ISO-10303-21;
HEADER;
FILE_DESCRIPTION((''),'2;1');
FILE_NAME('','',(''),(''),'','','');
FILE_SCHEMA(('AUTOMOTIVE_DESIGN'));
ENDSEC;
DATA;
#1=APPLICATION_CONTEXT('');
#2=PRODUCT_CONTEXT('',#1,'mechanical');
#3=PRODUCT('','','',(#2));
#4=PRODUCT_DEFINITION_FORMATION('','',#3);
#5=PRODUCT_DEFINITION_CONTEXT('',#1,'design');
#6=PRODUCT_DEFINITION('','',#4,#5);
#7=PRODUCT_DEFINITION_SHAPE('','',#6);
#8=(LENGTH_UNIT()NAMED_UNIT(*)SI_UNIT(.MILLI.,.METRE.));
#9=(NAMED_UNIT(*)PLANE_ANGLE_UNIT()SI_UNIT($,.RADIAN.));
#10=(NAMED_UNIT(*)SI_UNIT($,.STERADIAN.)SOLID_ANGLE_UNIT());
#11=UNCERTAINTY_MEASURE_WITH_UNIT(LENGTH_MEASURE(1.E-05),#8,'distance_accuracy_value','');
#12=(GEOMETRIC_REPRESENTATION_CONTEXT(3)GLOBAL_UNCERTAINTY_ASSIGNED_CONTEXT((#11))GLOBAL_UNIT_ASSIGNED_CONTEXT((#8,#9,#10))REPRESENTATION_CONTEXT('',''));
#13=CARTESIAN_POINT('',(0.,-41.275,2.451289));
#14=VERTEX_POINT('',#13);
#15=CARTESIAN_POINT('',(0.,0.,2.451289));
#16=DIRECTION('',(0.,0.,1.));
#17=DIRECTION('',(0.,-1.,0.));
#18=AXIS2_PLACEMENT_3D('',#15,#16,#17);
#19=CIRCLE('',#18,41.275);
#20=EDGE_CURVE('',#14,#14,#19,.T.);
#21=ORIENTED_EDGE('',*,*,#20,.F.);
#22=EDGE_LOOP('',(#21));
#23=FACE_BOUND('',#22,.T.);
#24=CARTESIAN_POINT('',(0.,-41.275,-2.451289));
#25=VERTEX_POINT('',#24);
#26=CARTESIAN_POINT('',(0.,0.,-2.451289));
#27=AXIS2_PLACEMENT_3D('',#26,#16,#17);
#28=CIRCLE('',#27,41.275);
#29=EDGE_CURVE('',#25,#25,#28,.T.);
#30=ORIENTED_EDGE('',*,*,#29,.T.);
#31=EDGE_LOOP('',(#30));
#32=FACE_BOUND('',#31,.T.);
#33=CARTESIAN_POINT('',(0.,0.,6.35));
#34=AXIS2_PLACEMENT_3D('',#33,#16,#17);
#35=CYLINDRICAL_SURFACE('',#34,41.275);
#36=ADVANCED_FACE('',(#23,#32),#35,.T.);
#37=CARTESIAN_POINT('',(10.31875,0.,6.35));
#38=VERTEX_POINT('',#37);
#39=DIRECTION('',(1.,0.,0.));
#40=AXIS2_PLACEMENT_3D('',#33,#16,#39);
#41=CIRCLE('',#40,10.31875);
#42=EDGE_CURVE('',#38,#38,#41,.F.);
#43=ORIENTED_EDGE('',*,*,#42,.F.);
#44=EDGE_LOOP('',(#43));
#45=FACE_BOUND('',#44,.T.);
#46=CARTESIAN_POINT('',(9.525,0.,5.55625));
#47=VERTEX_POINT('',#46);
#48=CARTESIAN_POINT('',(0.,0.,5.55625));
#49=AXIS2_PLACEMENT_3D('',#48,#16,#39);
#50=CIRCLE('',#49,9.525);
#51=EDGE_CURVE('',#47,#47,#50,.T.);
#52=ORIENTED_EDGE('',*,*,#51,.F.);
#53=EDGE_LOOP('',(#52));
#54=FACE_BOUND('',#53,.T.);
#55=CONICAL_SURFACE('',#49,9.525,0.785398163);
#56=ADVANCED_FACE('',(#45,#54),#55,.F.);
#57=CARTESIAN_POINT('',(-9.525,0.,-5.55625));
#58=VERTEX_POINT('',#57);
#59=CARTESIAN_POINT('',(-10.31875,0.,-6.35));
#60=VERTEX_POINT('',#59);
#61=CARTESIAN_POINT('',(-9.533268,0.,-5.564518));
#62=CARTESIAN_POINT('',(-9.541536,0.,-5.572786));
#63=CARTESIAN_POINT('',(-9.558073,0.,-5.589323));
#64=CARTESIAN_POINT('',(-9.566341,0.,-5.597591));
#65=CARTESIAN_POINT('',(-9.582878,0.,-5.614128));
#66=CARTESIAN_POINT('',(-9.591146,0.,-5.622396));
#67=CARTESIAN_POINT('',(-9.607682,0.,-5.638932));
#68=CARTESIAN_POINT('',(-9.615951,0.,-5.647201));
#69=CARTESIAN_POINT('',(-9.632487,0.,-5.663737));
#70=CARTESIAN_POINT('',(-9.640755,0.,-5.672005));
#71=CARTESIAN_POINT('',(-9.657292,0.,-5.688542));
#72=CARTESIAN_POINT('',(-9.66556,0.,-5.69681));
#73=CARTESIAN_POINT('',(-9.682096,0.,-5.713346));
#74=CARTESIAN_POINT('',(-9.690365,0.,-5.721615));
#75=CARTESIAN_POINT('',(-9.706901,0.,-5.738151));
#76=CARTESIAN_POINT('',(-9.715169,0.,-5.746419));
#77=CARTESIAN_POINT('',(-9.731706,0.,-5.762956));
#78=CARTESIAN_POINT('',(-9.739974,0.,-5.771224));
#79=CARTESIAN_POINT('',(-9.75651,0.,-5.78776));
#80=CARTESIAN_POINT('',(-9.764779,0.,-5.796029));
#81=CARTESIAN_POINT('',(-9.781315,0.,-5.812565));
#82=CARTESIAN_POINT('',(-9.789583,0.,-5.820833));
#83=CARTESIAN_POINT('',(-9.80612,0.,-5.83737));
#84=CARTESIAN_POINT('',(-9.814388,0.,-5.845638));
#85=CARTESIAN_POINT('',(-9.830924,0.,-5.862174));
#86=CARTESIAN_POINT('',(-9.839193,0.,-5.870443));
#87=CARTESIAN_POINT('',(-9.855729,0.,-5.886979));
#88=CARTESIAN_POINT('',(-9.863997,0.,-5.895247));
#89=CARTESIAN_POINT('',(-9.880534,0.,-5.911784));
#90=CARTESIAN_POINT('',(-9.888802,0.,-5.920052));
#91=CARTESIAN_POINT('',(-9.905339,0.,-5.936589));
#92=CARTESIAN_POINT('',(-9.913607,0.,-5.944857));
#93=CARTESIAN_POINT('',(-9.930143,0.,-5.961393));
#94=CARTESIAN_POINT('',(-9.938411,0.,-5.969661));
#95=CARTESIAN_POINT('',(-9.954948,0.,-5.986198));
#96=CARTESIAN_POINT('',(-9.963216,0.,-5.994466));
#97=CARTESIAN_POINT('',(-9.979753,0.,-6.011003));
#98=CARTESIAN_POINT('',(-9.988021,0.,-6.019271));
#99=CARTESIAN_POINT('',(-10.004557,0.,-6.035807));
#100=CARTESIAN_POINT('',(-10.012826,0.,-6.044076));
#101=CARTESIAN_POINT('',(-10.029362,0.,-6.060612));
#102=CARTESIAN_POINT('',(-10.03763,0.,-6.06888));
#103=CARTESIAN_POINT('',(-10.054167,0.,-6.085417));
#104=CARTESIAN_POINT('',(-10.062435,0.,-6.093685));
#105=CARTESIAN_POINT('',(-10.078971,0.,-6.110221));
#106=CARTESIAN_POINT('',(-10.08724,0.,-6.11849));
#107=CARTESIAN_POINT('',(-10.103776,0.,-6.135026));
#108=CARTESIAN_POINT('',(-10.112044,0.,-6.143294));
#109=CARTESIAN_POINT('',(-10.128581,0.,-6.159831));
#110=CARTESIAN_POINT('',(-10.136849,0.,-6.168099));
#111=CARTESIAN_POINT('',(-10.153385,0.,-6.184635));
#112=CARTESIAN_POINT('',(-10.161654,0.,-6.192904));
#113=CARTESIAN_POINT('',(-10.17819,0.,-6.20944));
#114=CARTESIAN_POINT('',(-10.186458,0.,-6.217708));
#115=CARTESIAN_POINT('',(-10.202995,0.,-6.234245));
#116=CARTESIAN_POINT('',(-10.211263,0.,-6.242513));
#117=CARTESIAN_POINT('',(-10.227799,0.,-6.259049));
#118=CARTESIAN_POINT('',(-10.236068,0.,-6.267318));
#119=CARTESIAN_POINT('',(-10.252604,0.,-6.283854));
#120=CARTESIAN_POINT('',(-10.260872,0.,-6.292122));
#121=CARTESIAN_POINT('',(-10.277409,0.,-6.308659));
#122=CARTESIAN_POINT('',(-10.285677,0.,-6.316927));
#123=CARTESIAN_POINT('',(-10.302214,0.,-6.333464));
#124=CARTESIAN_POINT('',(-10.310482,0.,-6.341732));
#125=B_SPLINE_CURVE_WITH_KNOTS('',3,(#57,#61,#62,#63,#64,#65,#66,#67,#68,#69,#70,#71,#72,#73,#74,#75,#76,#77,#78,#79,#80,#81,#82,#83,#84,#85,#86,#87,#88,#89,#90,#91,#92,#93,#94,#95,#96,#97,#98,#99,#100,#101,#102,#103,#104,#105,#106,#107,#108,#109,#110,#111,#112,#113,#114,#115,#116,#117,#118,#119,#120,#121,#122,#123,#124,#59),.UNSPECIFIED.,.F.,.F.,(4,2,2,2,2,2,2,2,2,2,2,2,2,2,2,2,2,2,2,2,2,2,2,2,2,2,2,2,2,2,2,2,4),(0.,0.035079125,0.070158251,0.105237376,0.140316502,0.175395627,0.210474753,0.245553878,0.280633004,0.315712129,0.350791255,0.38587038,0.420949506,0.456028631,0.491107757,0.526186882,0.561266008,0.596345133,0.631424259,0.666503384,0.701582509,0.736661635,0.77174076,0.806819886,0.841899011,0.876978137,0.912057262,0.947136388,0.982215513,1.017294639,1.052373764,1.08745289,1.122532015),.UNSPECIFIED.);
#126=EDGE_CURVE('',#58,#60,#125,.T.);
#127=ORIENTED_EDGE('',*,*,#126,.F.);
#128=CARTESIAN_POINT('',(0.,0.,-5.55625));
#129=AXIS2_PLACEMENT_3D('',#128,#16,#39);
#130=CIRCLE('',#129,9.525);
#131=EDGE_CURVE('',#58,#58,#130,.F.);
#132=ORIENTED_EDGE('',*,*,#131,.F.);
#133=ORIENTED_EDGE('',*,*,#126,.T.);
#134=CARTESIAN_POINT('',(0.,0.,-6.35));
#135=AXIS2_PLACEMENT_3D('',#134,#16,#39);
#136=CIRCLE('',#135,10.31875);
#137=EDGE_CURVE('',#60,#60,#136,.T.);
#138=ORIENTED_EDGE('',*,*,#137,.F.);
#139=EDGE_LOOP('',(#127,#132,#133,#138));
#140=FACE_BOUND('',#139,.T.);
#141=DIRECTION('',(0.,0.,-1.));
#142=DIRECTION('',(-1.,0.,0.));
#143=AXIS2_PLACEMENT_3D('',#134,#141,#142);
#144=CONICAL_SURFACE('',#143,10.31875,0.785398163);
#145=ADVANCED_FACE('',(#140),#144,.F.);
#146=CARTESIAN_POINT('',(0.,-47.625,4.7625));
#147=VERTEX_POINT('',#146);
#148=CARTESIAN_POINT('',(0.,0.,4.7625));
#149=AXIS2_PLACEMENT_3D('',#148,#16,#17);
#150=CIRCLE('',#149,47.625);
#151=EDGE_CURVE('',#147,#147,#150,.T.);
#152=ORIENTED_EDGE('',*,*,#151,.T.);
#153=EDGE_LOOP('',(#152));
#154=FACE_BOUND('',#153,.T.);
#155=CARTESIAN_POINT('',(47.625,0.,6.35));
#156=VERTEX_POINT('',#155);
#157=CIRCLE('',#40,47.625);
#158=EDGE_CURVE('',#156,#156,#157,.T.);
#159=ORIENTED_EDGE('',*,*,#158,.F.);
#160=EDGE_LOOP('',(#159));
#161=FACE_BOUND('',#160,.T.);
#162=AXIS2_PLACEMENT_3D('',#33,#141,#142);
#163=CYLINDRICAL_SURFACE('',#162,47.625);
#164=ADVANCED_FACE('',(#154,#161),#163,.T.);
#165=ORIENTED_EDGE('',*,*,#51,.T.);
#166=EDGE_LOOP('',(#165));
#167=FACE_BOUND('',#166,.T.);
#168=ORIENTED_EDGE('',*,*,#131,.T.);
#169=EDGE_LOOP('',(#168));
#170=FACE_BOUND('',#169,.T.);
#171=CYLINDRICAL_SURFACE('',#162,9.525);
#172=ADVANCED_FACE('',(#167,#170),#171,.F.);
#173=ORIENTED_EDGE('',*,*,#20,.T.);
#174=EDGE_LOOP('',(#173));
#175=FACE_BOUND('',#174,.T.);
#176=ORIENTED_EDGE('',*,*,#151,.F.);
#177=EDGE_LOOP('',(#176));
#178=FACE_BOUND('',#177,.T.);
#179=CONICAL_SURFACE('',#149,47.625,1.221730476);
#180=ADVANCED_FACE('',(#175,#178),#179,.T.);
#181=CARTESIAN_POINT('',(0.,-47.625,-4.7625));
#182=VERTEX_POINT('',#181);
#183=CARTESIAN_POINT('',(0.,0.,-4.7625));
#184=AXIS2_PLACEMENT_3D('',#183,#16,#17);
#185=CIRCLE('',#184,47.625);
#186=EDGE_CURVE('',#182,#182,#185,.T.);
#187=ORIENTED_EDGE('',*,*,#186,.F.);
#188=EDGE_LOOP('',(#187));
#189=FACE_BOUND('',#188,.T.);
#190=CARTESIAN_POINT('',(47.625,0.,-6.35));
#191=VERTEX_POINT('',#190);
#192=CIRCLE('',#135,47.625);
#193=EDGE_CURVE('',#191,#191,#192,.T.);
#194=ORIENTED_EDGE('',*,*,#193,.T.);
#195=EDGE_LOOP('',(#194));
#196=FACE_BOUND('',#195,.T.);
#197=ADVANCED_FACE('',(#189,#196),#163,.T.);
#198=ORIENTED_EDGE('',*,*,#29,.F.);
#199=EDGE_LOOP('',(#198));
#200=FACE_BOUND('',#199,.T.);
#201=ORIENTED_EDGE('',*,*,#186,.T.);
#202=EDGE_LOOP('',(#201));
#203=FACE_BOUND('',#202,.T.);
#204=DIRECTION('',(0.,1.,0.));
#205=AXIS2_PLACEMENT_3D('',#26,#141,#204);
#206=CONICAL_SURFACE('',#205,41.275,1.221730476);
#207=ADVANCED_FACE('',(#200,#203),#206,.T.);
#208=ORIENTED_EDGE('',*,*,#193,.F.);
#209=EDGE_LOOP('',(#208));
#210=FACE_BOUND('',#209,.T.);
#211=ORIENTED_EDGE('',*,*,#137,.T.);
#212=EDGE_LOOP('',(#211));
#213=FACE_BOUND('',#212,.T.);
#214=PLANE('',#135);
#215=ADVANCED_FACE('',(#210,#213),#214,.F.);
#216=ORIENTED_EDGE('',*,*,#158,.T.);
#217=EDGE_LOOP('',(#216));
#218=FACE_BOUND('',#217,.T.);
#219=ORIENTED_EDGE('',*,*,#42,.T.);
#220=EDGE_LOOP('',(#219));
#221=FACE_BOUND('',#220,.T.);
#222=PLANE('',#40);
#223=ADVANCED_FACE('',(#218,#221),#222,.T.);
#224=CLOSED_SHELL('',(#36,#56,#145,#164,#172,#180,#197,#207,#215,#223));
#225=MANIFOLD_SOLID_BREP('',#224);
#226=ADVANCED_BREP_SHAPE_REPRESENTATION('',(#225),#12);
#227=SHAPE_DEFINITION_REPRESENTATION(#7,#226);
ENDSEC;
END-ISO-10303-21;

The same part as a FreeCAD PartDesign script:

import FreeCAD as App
import Part
import Sketcher

V = App.Vector
Q = App.Units.Quantity


def edges_at(feature, points):
    """Names of the edges that pass closest to the given points."""
    edges = feature.Shape.Edges
    near = lambda p: min(range(len(edges)), key=lambda i: edges[i].distToShape(Part.Vertex(*p))[0])
    return sorted({f"Edge{near(p) + 1}" for p in points})

doc = App.newDocument("Part")
body = doc.addObject("PartDesign::Body", "Body")

sketch1 = doc.addObject("Sketcher::SketchObject", "Sketch")
body.addObject(sketch1)
sketch1.AttachmentSupport = (doc.XY_Plane, [""])
sketch1.MapMode = "FlatFace"
sketch1.addGeometry([
    Part.Circle(V(0, 0, 0), V(0, 0, 1), 48),
    Part.Circle(V(0, 0, 0), V(0, 0, 1), 10),
], False)
sketch1.addConstraint([
    Sketcher.Constraint("Coincident", 0, 3, -1, 1),
    Sketcher.Constraint("Coincident", 1, 3, -1, 1),
    Sketcher.Constraint("Diameter", 0, Q("3.75 in")),
    Sketcher.Constraint("Diameter", 1, Q("0.75 in")),
])
pad1 = doc.addObject("PartDesign::Pad", "Pad")
body.addObject(pad1)
pad1.Profile = sketch1
pad1.Length = Q("0.5 in")
pad1.Midplane = True
doc.recompute()

chamfer = doc.addObject("PartDesign::Chamfer", "Chamfer")
body.addObject(chamfer)
chamfer.Base = (pad1, edges_at(pad1, [(-9.525, 0, -6.35), (-9.525, 0, 6.35)]))
chamfer.Size = Q("0.03125 in")

sketch2 = doc.addObject("Sketcher::SketchObject", "Sketch001")
body.addObject(sketch2)
sketch2.AttachmentSupport = (doc.YZ_Plane, [""])
sketch2.MapMode = "FlatFace"
sketch2.addGeometry([
    Part.LineSegment(V(47.6, -4.8, 0), V(47.6, 4.8, 0)),
    Part.LineSegment(V(47.6, 4.8, 0), V(41.3, 2.5, 0)),
    Part.LineSegment(V(41.3, 2.5, 0), V(41.3, -2.5, 0)),
    Part.LineSegment(V(41.3, -2.5, 0), V(47.6, -4.8, 0)),
], False)
sketch2.addConstraint([
    Sketcher.Constraint("Coincident", 0, 2, 1, 1),
    Sketcher.Constraint("Coincident", 1, 2, 2, 1),
    Sketcher.Constraint("Coincident", 2, 2, 3, 1),
    Sketcher.Constraint("Coincident", 3, 2, 0, 1),
    Sketcher.Constraint("Vertical", 0),
    Sketcher.Constraint("Vertical", 2),
    Sketcher.Constraint("Equal", 1, 3),
    Sketcher.Constraint("Angle", 1, Q("-160 deg")),
    Sketcher.Constraint("DistanceY", 0, 1, 0, 2, Q("0.375 in")),
    Sketcher.Constraint("DistanceX", 1, 2, 0, 2, Q("0.25 in")),
    Sketcher.Constraint("DistanceX", -1, 1, 0, 2, Q("1.875 in")),
    Sketcher.Constraint("DistanceY", -1, 1, 0, 2, Q("0.1875 in")),
])
groove = doc.addObject("PartDesign::Groove", "Groove")
body.addObject(groove)
groove.Profile = sketch2
groove.ReferenceAxis = (sketch2, ["V_Axis"])
groove.Angle = 360

doc.recompute()
